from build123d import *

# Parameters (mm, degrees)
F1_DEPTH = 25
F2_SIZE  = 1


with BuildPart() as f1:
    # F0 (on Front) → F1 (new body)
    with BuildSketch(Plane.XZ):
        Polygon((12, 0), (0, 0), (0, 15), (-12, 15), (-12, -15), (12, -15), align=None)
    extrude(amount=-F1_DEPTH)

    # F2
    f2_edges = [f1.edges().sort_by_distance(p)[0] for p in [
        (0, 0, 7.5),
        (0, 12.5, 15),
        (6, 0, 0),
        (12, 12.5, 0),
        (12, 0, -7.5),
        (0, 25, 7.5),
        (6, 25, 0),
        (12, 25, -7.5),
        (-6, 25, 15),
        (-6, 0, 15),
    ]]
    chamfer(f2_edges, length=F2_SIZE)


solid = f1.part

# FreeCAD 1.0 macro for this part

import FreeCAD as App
import Part
import Sketcher

V = App.Vector


def edges_at(feature, points):
    """Names of the edges that pass closest to the given points."""
    edges = feature.Shape.Edges
    near = lambda p: min(range(len(edges)), key=lambda i: edges[i].distToShape(Part.Vertex(*p))[0])
    return sorted({f"Edge{near(p) + 1}" for p in points})


def add_polygon(sketch, points):
    """Adds a closed chain of lines whose ends are joined by coincident constraints."""
    first, n = sketch.GeometryCount, len(points)
    for a, b in zip(points, points[1:] + points[:1]):
        sketch.addGeometry(Part.LineSegment(App.Vector(*a, 0), App.Vector(*b, 0)), False)
    for i in range(n):
        sketch.addConstraint(Sketcher.Constraint("Coincident", first + i, 2, first + (i + 1) % n, 1))

doc = App.newDocument("Part")
body = doc.addObject("PartDesign::Body", "Body")

sketch1 = doc.addObject("Sketcher::SketchObject", "Sketch")
body.addObject(sketch1)
sketch1.AttachmentSupport = (doc.XZ_Plane, [""])
sketch1.MapMode = "FlatFace"
add_polygon(sketch1, [(12, 0), (0, 0), (0, 15), (-12, 15), (-12, -15), (12, -15)])
sketch1.addConstraint([
    Sketcher.Constraint("Horizontal", 0),
    Sketcher.Constraint("Vertical", 1),
    Sketcher.Constraint("Horizontal", 2),
    Sketcher.Constraint("Vertical", 3),
    Sketcher.Constraint("Horizontal", 4),
    Sketcher.Constraint("Vertical", 5),
    Sketcher.Constraint("Coincident", 0, 2, -1, 1),
    Sketcher.Constraint("Symmetric", 2, 2, 4, 2, -1, 1),
    Sketcher.Constraint("DistanceX", 0, 2, 0, 1, 12.0),
    Sketcher.Constraint("DistanceY", 1, 1, 1, 2, 15.0),
])
pad1 = doc.addObject("PartDesign::Pad", "Pad")
body.addObject(pad1)
pad1.Profile = sketch1
pad1.Length = 25
pad1.Reversed = True
doc.recompute()

chamfer = doc.addObject("PartDesign::Chamfer", "Chamfer")
body.addObject(chamfer)
chamfer.Base = (pad1, edges_at(pad1, [
    (0, 0, 7.5),
    (0, 12.5, 15),
    (6, 0, 0),
    (12, 12.5, 0),
    (12, 0, -7.5),
    (0, 25, 7.5),
    (6, 25, 0),
    (12, 25, -7.5),
    (-6, 25, 15),
    (-6, 0, 15),
]))
chamfer.Size = 1

doc.recompute()
